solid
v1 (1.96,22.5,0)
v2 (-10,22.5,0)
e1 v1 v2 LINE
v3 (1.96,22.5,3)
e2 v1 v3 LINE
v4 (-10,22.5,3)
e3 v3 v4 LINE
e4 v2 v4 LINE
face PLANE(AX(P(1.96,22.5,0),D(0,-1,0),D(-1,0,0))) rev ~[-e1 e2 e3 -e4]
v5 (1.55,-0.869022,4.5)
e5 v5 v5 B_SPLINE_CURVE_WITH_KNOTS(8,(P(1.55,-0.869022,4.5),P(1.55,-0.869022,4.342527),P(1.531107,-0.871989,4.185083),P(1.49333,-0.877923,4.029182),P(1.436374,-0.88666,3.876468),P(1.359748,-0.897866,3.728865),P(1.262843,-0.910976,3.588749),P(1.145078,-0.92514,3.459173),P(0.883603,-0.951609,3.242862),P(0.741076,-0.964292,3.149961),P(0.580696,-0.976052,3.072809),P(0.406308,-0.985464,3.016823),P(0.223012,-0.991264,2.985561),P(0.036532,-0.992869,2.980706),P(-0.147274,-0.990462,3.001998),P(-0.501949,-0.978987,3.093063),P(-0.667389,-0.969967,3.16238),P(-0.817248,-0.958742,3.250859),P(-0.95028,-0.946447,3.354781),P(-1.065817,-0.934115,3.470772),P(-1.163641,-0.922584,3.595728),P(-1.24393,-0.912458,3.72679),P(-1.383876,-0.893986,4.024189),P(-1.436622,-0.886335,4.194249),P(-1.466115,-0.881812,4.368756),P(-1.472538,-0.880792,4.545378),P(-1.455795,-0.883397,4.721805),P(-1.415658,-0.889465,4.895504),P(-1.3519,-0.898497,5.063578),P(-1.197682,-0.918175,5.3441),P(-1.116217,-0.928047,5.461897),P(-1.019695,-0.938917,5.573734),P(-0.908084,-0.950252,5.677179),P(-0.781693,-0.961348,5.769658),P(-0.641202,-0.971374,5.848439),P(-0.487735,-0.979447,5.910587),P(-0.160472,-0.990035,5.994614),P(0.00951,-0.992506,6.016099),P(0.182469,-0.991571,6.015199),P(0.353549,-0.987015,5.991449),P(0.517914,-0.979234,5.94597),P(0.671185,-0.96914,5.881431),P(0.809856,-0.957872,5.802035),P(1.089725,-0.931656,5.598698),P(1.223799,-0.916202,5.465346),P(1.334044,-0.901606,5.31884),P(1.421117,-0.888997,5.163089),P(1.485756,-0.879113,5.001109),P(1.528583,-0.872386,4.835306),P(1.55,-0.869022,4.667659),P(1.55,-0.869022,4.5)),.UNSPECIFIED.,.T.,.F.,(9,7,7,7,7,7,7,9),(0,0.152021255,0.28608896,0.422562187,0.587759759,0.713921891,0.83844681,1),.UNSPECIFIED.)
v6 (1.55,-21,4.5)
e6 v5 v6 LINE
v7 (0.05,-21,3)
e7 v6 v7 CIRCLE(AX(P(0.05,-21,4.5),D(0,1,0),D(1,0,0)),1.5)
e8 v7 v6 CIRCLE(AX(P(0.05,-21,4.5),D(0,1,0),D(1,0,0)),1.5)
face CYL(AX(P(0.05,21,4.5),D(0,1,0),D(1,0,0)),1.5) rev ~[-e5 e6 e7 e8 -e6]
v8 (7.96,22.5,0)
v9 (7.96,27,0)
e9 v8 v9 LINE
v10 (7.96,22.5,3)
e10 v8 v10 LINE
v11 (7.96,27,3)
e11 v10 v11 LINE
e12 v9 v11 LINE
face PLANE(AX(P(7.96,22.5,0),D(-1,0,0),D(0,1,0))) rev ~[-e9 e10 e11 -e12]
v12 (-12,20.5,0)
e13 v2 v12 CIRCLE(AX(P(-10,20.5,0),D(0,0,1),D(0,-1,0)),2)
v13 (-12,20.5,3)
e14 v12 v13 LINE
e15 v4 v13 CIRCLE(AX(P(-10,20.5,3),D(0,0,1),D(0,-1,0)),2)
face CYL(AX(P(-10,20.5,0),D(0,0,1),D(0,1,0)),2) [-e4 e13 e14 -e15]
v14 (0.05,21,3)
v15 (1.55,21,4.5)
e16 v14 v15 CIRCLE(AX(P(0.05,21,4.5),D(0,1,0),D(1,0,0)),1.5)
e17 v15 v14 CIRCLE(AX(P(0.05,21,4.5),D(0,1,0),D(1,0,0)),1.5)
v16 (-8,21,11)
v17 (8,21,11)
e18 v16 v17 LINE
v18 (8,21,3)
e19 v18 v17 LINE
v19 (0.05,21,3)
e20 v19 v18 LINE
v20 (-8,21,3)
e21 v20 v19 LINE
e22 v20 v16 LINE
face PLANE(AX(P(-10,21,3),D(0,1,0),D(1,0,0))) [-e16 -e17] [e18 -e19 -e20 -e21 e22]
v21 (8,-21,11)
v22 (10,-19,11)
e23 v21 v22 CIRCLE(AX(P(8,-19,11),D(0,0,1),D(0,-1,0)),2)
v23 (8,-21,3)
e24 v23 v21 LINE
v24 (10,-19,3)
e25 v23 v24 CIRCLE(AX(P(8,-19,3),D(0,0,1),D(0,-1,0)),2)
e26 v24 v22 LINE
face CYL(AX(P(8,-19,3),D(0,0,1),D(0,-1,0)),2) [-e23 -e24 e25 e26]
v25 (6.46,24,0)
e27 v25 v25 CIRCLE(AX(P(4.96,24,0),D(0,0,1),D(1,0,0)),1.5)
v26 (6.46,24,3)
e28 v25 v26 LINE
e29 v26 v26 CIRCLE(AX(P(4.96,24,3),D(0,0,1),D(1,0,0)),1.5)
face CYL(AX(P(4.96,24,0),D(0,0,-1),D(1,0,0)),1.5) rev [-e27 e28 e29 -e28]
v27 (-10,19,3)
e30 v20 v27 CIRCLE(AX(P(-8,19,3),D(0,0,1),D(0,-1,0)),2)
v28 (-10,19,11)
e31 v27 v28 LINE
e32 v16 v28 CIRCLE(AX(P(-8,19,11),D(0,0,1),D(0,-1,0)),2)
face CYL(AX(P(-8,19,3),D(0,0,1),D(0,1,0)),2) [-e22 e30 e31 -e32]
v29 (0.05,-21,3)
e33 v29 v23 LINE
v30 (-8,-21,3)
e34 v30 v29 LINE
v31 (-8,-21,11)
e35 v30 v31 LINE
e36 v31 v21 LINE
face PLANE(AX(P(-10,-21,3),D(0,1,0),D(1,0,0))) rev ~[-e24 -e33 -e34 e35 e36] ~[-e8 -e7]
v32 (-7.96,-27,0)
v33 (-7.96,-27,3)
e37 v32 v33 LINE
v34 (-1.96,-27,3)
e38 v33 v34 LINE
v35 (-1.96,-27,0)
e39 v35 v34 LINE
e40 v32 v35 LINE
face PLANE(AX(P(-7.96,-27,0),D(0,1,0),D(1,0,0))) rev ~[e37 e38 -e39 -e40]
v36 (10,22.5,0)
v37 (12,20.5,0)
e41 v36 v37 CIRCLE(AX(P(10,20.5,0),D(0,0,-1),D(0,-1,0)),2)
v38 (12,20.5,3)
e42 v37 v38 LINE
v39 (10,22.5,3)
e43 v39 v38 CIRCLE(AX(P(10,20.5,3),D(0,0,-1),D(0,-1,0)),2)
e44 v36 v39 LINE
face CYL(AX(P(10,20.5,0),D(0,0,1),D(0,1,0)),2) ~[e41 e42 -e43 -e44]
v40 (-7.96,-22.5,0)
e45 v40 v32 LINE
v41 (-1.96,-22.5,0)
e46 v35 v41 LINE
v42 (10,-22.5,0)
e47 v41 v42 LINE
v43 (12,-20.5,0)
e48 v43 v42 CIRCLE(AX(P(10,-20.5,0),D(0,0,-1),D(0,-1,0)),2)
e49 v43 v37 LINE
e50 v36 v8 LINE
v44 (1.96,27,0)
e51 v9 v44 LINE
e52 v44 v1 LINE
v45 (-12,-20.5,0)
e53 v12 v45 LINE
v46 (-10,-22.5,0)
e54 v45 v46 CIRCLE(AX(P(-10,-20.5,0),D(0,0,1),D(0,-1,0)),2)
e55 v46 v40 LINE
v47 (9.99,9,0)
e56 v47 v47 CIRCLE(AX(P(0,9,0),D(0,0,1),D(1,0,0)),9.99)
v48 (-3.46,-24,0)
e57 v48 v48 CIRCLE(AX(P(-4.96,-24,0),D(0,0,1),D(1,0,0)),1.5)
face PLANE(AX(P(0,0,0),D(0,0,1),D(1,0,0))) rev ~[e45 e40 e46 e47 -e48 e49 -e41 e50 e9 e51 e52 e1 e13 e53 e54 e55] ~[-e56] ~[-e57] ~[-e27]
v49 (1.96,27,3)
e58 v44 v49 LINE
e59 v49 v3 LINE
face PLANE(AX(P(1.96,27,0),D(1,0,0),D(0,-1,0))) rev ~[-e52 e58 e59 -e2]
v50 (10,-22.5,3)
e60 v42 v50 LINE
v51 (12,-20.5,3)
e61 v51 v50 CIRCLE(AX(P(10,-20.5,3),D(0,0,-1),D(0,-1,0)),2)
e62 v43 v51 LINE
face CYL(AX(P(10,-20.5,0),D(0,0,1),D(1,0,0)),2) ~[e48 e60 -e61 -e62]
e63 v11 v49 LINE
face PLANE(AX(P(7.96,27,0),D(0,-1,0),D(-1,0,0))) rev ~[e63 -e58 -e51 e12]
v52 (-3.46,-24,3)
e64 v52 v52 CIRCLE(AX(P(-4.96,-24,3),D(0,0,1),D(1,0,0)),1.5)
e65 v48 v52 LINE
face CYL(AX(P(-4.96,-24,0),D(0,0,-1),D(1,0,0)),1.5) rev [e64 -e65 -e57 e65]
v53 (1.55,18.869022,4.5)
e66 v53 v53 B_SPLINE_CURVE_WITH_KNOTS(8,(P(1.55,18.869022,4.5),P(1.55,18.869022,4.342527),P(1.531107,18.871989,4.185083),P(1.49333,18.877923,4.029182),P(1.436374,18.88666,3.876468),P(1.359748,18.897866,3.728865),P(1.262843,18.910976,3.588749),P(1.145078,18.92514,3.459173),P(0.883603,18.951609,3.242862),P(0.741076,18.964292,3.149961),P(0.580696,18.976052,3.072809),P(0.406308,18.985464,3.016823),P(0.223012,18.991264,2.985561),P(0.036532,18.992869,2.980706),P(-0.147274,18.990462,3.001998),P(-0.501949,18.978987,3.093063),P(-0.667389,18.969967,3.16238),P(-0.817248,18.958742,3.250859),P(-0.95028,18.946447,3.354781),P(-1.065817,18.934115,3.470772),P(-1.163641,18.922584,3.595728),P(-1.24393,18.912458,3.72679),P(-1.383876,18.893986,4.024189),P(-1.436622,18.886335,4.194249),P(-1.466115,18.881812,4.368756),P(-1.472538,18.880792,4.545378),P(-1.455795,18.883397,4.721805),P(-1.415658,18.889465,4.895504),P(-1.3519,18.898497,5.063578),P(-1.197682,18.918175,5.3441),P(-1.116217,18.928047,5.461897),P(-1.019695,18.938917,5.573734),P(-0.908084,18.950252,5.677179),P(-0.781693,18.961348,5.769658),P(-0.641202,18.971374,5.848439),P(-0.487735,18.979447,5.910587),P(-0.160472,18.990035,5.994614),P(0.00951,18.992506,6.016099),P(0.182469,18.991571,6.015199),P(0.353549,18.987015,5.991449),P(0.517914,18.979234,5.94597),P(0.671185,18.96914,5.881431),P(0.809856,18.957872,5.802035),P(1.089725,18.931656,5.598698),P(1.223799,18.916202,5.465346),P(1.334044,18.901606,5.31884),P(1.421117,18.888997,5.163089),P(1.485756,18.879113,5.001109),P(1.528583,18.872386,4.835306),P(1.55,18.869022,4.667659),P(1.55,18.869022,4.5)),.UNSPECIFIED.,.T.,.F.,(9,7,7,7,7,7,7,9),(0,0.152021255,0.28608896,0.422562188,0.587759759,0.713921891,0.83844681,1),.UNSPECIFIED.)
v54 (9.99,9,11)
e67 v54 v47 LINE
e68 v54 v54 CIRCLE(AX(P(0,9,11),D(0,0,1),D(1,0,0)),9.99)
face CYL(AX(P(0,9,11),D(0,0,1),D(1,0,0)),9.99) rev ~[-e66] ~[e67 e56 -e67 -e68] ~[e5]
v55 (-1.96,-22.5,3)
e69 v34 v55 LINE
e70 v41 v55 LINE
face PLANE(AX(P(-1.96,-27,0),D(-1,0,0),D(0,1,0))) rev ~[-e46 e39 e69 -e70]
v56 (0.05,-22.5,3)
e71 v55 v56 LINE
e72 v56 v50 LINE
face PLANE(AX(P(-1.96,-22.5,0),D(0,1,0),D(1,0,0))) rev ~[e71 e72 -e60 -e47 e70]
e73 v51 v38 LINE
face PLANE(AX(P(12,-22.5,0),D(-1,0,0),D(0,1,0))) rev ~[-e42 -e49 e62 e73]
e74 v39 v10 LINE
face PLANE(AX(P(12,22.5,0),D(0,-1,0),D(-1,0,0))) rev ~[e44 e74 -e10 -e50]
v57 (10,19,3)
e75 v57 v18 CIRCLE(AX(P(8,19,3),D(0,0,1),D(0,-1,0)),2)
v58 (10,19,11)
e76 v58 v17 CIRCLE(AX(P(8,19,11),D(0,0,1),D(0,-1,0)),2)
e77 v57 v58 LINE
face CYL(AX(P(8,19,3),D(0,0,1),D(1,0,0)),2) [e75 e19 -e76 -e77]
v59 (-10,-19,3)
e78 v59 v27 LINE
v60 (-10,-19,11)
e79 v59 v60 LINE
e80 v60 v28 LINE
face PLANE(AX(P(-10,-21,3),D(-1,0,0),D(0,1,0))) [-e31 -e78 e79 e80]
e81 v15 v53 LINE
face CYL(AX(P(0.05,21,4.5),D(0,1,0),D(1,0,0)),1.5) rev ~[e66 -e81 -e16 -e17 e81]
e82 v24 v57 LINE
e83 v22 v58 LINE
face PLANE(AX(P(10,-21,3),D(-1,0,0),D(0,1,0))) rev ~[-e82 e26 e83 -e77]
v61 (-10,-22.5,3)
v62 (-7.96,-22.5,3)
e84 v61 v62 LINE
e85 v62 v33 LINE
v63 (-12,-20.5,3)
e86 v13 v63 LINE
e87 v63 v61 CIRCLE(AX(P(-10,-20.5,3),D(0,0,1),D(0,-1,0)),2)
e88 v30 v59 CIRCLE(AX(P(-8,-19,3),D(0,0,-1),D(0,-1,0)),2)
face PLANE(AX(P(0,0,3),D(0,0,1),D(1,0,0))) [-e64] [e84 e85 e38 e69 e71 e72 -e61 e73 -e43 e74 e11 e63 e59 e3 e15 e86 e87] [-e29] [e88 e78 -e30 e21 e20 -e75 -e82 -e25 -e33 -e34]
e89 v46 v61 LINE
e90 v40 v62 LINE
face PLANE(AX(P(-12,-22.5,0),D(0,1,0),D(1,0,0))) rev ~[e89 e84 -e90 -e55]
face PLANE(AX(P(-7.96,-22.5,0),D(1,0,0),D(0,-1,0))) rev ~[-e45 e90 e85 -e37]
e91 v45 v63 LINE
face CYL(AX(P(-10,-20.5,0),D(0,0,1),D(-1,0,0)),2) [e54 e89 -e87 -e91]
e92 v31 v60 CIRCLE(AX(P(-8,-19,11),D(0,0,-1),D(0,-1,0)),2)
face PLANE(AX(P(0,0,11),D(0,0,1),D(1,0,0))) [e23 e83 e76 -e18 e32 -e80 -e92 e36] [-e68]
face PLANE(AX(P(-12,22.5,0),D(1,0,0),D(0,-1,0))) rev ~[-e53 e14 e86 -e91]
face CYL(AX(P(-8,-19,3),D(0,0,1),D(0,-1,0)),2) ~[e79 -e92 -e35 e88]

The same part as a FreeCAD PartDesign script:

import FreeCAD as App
import Part
import Sketcher

V = App.Vector


def edges_at(feature, points):
    """Names of the edges that pass closest to the given points."""
    edges = feature.Shape.Edges
    near = lambda p: min(range(len(edges)), key=lambda i: edges[i].distToShape(Part.Vertex(*p))[0])
    return sorted({f"Edge{near(p) + 1}" for p in points})


def add_polygon(sketch, points):
    """Adds a closed chain of lines whose ends are joined by coincident constraints."""
    first, n = sketch.GeometryCount, len(points)
    for a, b in zip(points, points[1:] + points[:1]):
        sketch.addGeometry(Part.LineSegment(App.Vector(*a, 0), App.Vector(*b, 0)), False)
    for i in range(n):
        sketch.addConstraint(Sketcher.Constraint("Coincident", first + i, 2, first + (i + 1) % n, 1))

doc = App.newDocument("Part")
body = doc.addObject("PartDesign::Body", "Body")

# Sketch on XY plane
sketch1 = body.newObject("Sketcher::SketchObject", "Sketch")
sketch1.AttachmentSupport = (doc.getObject("XY_Plane"), [""])
sketch1.MapMode = "FlatFace"
add_polygon(sketch1, [(12, 22.5), (8, 22.5), (8, 27), (2, 27), (2, 22.5), (-12, 22.5), (-12, -22.5), (-8, -22.5), (-8, -27), (-2, -27), (-2, -22.5), (12, -22.5)])  # lines 0-11
sketch1.addGeometry(Part.Circle(V(-5, -24, 0), V(0, 0, 1), 1.5), False)  # 12
sketch1.addGeometry(Part.Circle(V(5, 24, 0), V(0, 0, 1), 1.5), False)  # 13
sketch1.addConstraint(Sketcher.Constraint("Horizontal", 0))
sketch1.addConstraint(Sketcher.Constraint("Vertical", 1))
sketch1.addConstraint(Sketcher.Constraint("Horizontal", 2))
sketch1.addConstraint(Sketcher.Constraint("Vertical", 3))
sketch1.addConstraint(Sketcher.Constraint("Horizontal", 4))
sketch1.addConstraint(Sketcher.Constraint("Vertical", 5))
sketch1.addConstraint(Sketcher.Constraint("Horizontal", 6))
sketch1.addConstraint(Sketcher.Constraint("Vertical", 7))
sketch1.addConstraint(Sketcher.Constraint("Horizontal", 8))
sketch1.addConstraint(Sketcher.Constraint("Vertical", 9))
sketch1.addConstraint(Sketcher.Constraint("Horizontal", 10))
sketch1.addConstraint(Sketcher.Constraint("Vertical", 11))
sketch1.addConstraint(Sketcher.Constraint("Equal", 12, 13))
sketch1.addConstraint(Sketcher.Constraint("Symmetric", 12, 3, 13, 3, -1, 1))
sketch1.addConstraint(Sketcher.Constraint("Symmetric", 0, 2, 6, 2, -1, 1))
sketch1.addConstraint(Sketcher.Constraint("Symmetric", 2, 2, 8, 2, -1, 1))
sketch1.addConstraint(Sketcher.Constraint("Symmetric", 4, 2, 10, 2, -1, 1))
sketch1.addConstraint(Sketcher.Constraint("Horizontal", 0, 2, 3, 2))
sketch1.addConstraint(Sketcher.Constraint("Diameter", 12, 3.0))
sketch1.addConstraint(Sketcher.Constraint("DistanceX", 2, 2, 2, 1, 6.0))
sketch1.addConstraint(Sketcher.Constraint("DistanceY", 5, 2, 5, 1, 45.0))
sketch1.addConstraint(Sketcher.Constraint("DistanceY", 1, 1, 1, 2, 4.5))
sketch1.addConstraint(Sketcher.Constraint("DistanceY", 12, 3, -1, 1, 24.0))
sketch1.addConstraint(Sketcher.Constraint("DistanceX", 4, 2, -1, 1, 12.0))
sketch1.addConstraint(Sketcher.Constraint("DistanceX", 13, 3, 0, 2, 3.0))
sketch1.addConstraint(Sketcher.Constraint("DistanceX", 0, 2, 0, 1, 4.04))
pad1 = body.newObject("PartDesign::Pad", "Pad")
pad1.Profile = sketch1
pad1.Length = 3
doc.recompute()

fillet = body.newObject("PartDesign::Fillet", "Fillet")
fillet.Base = (pad1, edges_at(pad1, [
    (-12, 22.5, 1.5),
    (12, 22.5, 1.5),
    (12, -22.5, 1.5),
    (-12, -22.5, 1.5),
]))
fillet.Radius = 2

# Sketch on XY plane
sketch2 = body.newObject("Sketcher::SketchObject", "Sketch001")
sketch2.AttachmentSupport = (doc.getObject("XY_Plane"), [""])
sketch2.MapMode = "FlatFace"
sketch2.AttachmentOffset = App.Placement(V(0, 0, 3), App.Rotation())
add_polygon(sketch2, [(-10, 21), (-10, -21), (10, -21), (10, 21)])  # lines 0-3
sketch2.addConstraint(Sketcher.Constraint("Vertical", 0))
sketch2.addConstraint(Sketcher.Constraint("Horizontal", 1))
sketch2.addConstraint(Sketcher.Constraint("Vertical", 2))
sketch2.addConstraint(Sketcher.Constraint("Horizontal", 3))
sketch2.addConstraint(Sketcher.Constraint("Symmetric", 0, 2, 2, 2, -1, 1))
sketch2.addConstraint(Sketcher.Constraint("DistanceX", 1, 1, 1, 2, 20.0))
sketch2.addConstraint(Sketcher.Constraint("DistanceY", 0, 2, 0, 1, 42.0))
pad2 = body.newObject("PartDesign::Pad", "Pad001")
pad2.Profile = sketch2
pad2.Length = 8
doc.recompute()

fillet2 = body.newObject("PartDesign::Fillet", "Fillet001")
fillet2.Base = (pad2, edges_at(pad2, [
    (-10, 21, 7),
    (-10, -21, 7),
    (10, -21, 7),
    (10, 21, 7),
]))
fillet2.Radius = 2

# Sketch on XY plane
sketch3 = body.newObject("Sketcher::SketchObject", "Sketch002")
sketch3.AttachmentSupport = (doc.getObject("XY_Plane"), [""])
sketch3.MapMode = "FlatFace"
sketch3.AttachmentOffset = App.Placement(V(0, 0, 11), App.Rotation())
sketch3.addGeometry(Part.Circle(V(0, 9, 0), V(0, 0, 1), 10), False)
sketch3.addConstraint(Sketcher.Constraint("PointOnObject", 0, 3, -2))
sketch3.addConstraint(Sketcher.Constraint("Diameter", 0, 19.98))
sketch3.addConstraint(Sketcher.Constraint("DistanceY", -1, 1, 0, 3, 9.0))
pocket1 = body.newObject("PartDesign::Pocket", "Pocket")
pocket1.Profile = sketch3
pocket1.Type = "ThroughAll"

# Sketch on XZ plane
sketch4 = body.newObject("Sketcher::SketchObject", "Sketch003")
sketch4.AttachmentSupport = (doc.getObject("XZ_Plane"), [""])
sketch4.MapMode = "FlatFace"
sketch4.AttachmentOffset = App.Placement(V(0, 0, -21), App.Rotation())
sketch4.addGeometry(Part.Circle(V(0.1, 4.5, 0), V(0, 0, 1), 1.5), False)
sketch4.addConstraint(Sketcher.Constraint("Diameter", 0, 3.0))
sketch4.addConstraint(Sketcher.Constraint("DistanceY", -1, 1, 0, 3, 4.5))
sketch4.addConstraint(Sketcher.Constraint("DistanceX", -1, 1, 0, 3, 0.05))
pocket2 = body.newObject("PartDesign::Pocket", "Pocket001")
pocket2.Profile = sketch4
pocket2.Type = "ThroughAll"
pocket2.Reversed = True

doc.recompute()
